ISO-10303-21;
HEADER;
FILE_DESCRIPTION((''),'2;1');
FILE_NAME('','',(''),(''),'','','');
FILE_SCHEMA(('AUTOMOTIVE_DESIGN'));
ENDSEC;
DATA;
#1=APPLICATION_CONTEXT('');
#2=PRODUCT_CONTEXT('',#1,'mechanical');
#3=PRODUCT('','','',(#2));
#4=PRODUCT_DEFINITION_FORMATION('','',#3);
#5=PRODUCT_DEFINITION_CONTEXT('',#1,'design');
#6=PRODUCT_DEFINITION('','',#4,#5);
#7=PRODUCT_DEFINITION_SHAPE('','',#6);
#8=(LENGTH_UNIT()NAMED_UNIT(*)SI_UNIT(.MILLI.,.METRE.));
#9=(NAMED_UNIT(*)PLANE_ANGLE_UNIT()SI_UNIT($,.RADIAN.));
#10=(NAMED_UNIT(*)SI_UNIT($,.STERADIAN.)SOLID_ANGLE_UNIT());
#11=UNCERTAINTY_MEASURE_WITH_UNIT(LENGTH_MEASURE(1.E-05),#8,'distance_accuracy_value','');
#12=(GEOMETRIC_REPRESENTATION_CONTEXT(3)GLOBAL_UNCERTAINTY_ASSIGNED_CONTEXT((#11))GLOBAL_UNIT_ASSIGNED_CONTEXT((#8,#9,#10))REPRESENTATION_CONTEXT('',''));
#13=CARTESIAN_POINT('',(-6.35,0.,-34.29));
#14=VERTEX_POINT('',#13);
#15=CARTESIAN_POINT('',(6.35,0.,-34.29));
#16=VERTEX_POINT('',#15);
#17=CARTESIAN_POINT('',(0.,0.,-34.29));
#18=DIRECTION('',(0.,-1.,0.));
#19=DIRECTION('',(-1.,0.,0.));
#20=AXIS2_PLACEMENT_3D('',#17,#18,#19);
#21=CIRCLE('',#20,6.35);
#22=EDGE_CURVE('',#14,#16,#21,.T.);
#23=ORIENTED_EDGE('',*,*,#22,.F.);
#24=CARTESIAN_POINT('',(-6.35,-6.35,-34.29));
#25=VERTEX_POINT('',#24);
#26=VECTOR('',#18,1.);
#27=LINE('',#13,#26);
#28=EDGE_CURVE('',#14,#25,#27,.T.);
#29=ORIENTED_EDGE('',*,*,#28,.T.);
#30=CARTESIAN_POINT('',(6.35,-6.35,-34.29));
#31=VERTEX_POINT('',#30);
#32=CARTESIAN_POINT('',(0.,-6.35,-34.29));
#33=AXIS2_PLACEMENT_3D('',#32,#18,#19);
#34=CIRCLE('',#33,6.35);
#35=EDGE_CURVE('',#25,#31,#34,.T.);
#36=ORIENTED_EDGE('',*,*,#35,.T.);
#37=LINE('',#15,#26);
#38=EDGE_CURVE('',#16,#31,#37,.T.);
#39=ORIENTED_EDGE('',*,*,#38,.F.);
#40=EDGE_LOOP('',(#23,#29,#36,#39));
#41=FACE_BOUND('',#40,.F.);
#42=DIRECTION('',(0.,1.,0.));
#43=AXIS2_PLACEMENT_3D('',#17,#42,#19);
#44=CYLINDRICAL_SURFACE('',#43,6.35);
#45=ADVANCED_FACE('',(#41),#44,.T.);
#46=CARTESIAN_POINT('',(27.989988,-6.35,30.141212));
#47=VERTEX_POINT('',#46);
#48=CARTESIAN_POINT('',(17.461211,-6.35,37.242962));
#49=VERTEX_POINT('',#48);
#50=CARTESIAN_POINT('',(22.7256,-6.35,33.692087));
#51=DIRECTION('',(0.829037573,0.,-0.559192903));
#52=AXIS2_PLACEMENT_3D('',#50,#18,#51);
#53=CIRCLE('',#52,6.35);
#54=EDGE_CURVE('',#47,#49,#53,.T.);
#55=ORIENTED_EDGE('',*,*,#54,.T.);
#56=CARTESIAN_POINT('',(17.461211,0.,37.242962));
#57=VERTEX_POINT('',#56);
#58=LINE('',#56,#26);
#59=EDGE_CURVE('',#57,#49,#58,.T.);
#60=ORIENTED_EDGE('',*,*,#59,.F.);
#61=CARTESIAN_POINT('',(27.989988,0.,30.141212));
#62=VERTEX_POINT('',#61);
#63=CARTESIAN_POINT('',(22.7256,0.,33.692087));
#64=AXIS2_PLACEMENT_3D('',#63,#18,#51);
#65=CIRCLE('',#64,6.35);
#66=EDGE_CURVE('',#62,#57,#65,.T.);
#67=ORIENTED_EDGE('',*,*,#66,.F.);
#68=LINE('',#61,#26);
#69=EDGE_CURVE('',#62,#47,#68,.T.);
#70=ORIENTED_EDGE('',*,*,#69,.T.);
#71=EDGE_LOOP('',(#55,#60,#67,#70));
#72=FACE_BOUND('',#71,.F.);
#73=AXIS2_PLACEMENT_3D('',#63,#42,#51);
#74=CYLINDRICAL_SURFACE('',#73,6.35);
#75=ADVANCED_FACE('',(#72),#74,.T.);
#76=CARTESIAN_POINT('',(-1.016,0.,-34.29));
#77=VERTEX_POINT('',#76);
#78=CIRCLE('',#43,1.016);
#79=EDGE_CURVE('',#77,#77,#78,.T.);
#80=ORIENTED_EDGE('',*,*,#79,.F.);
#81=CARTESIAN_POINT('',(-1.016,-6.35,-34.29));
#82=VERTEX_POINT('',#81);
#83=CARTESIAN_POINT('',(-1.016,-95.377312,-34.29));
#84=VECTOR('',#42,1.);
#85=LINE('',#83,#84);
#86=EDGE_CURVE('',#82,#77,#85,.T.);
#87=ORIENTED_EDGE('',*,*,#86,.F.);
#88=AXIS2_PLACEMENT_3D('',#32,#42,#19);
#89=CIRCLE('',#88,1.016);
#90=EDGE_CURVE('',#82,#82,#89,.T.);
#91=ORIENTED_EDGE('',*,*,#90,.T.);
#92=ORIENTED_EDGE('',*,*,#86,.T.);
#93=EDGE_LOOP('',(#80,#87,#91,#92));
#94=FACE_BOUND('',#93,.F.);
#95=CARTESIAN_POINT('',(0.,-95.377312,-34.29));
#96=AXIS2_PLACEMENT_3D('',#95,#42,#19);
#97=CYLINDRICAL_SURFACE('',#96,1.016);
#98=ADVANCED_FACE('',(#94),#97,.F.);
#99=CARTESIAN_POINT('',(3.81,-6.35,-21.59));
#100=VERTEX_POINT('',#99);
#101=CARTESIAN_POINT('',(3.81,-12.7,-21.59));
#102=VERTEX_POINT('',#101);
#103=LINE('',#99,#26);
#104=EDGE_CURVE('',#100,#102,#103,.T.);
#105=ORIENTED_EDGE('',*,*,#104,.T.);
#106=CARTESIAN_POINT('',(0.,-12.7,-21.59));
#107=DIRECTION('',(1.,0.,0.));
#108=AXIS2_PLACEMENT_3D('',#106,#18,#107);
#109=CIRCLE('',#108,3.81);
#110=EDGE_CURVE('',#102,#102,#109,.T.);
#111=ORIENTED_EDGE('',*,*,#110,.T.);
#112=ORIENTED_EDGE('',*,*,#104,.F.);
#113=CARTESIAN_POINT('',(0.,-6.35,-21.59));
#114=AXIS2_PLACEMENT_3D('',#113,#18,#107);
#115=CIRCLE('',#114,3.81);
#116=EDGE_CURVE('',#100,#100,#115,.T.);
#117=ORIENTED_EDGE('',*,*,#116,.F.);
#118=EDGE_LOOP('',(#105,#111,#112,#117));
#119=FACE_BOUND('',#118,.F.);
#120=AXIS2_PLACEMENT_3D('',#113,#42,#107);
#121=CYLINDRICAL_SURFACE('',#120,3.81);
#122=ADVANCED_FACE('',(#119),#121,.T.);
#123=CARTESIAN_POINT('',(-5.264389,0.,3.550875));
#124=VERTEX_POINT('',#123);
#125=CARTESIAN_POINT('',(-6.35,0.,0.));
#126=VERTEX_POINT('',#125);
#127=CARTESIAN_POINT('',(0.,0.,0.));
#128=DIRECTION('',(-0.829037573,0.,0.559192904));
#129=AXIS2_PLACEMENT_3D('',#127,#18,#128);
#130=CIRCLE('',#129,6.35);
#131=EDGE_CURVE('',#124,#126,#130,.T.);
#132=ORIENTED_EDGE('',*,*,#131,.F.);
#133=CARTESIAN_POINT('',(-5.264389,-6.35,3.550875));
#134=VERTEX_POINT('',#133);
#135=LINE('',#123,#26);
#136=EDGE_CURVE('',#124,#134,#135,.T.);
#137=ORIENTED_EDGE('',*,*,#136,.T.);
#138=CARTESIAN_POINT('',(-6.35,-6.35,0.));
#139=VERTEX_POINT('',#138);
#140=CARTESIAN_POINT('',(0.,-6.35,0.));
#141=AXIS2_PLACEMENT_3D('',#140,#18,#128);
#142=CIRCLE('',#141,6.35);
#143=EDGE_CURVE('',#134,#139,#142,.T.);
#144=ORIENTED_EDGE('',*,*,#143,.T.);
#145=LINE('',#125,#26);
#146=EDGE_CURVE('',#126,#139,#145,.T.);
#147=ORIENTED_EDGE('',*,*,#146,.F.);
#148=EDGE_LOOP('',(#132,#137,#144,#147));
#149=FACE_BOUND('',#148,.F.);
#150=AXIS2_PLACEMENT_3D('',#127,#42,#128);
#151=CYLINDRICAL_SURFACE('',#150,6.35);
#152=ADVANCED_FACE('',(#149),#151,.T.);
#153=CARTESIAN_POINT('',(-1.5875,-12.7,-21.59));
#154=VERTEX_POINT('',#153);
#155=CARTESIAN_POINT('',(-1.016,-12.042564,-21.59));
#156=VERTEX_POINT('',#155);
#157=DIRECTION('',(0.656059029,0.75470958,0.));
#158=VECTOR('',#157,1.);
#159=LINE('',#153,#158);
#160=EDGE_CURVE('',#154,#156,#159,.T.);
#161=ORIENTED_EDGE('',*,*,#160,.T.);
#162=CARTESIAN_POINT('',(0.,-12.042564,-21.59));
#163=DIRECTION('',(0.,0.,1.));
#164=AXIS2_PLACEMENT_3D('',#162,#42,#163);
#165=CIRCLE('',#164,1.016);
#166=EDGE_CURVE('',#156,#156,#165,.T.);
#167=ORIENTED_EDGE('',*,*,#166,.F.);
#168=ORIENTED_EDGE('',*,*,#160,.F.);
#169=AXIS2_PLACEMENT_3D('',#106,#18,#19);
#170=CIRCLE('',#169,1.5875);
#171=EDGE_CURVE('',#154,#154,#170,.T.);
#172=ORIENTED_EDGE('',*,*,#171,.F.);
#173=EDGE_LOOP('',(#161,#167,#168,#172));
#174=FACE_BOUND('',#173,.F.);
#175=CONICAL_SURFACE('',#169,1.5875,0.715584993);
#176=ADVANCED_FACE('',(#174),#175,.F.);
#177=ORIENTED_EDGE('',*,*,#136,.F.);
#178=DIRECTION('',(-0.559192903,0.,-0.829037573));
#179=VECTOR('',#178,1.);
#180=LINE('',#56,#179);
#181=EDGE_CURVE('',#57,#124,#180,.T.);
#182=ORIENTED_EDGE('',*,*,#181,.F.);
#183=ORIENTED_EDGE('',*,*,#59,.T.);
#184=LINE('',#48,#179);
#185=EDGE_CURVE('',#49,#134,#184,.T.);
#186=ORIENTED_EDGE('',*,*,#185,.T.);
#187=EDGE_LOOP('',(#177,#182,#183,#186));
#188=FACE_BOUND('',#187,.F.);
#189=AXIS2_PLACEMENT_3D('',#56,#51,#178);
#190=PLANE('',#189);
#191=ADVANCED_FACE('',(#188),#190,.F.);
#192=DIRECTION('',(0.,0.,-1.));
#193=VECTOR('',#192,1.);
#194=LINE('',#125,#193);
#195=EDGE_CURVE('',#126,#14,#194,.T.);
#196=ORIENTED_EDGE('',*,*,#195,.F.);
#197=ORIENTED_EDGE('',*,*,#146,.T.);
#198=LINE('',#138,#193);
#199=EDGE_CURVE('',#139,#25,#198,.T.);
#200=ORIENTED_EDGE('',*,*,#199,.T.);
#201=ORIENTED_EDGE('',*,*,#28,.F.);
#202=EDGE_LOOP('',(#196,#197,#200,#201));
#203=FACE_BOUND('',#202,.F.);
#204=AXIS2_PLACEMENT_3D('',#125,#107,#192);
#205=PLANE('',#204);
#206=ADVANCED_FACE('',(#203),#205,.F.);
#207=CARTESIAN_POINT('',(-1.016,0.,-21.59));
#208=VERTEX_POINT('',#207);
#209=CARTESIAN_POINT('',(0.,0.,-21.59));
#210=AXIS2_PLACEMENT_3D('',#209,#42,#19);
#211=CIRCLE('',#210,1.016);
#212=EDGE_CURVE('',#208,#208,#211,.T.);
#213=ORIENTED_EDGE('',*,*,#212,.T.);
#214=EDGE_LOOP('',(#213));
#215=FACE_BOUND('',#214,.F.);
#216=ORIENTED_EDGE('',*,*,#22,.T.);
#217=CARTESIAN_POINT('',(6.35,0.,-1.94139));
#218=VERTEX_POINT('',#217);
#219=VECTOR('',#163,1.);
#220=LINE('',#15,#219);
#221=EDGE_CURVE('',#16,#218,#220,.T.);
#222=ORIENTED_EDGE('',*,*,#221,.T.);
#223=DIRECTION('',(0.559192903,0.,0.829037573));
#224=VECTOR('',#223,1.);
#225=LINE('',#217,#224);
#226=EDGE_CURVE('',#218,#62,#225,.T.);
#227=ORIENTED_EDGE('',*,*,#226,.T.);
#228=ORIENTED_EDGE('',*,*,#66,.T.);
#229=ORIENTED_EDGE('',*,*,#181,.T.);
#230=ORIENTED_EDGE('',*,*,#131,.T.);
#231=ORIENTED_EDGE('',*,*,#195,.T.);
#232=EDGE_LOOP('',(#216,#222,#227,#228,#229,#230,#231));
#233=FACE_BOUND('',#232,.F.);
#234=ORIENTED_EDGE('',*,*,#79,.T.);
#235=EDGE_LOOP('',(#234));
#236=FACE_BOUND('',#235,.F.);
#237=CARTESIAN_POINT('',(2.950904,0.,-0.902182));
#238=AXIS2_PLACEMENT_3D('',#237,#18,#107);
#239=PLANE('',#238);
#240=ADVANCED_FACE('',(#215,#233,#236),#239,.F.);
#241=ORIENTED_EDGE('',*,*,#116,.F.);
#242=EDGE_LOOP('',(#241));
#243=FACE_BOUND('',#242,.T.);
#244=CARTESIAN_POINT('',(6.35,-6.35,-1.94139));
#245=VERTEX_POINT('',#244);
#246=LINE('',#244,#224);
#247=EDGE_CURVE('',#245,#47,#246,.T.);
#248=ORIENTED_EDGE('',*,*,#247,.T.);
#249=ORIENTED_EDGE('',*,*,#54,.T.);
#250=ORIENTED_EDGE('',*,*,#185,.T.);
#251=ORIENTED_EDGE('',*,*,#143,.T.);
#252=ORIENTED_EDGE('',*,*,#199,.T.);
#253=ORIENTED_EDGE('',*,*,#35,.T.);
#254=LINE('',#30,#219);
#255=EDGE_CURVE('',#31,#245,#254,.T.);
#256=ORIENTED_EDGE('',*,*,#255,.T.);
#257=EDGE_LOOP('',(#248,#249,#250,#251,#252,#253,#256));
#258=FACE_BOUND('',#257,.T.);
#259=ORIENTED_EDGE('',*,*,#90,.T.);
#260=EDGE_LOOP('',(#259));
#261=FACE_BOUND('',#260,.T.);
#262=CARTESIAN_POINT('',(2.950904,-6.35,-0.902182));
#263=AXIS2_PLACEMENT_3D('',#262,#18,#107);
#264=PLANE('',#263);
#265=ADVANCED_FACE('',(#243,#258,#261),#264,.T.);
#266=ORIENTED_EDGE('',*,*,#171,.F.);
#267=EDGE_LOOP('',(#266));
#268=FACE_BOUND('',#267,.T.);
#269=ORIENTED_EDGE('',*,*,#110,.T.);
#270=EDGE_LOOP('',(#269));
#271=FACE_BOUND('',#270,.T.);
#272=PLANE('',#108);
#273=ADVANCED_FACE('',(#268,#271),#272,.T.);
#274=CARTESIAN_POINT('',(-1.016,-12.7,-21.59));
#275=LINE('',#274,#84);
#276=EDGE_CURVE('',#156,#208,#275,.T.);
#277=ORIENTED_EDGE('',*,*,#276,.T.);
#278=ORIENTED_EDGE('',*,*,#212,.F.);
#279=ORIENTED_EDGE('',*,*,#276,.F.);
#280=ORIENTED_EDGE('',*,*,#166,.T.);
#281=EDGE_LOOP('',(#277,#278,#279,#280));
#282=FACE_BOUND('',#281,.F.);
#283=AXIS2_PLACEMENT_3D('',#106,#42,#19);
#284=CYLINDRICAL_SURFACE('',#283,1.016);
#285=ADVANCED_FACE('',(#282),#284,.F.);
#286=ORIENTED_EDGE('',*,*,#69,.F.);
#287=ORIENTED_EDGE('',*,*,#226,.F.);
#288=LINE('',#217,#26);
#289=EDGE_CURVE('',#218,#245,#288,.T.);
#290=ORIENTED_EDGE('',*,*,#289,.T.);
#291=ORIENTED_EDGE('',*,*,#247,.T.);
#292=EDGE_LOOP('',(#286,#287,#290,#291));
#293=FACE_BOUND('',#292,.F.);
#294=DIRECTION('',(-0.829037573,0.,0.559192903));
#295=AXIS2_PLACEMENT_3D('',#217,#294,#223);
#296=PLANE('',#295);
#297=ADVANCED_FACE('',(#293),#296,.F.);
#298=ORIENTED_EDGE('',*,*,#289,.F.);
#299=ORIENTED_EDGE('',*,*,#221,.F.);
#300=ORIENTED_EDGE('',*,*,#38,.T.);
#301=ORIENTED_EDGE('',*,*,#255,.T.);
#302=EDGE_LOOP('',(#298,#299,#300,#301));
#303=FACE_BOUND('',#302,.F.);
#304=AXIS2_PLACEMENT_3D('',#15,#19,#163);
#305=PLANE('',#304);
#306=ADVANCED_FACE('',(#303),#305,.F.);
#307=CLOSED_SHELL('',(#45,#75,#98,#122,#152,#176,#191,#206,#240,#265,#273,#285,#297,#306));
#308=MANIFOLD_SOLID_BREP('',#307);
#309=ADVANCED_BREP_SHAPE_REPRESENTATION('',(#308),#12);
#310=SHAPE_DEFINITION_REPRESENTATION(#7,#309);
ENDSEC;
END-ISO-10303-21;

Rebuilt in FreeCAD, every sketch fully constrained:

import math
import FreeCAD as App
import Part
import Sketcher
from FreeCAD import Vector
Q = App.Units.Quantity

doc = App.newDocument("Part")
body = doc.addObject("PartDesign::Body", "Body")

sketch1 = body.newObject("Sketcher::SketchObject", "Sketch")
sketch1.AttachmentSupport = (doc.getObject("XZ_Plane"), [""])
sketch1.MapMode = "FlatFace"
sketch1.addGeometry([
    Part.ArcOfCircle(Part.Circle(Vector(0, 0, 0), Vector(0, 0, 1), 6.3), math.radians(146), math.radians(180)),
    Part.LineSegment(Vector(-6.3, 0, 0), Vector(-6.3, -34.3, 0)),
    Part.ArcOfCircle(Part.Circle(Vector(0, -34.3, 0), Vector(0, 0, 1), 6.3), math.radians(180), math.radians(360)),
    Part.LineSegment(Vector(6.3, -34.3, 0), Vector(6.3, -1.9, 0)),
    Part.LineSegment(Vector(6.3, -1.9, 0), Vector(28, 30.1, 0)),
    Part.ArcOfCircle(Part.Circle(Vector(22.7, 33.7, 0), Vector(0, 0, 1), 6.3), math.radians(-34), math.radians(146)),
    Part.LineSegment(Vector(17.5, 37.2, 0), Vector(-5.3, 3.6, 0)),
], False)
sketch1.addConstraint([
    Sketcher.Constraint("Tangent", 0, 2, 1, 1),
    Sketcher.Constraint("Tangent", 1, 2, 2, 1),
    Sketcher.Constraint("Tangent", 2, 2, 3, 1),
    Sketcher.Constraint("Coincident", 3, 2, 4, 1),
    Sketcher.Constraint("Tangent", 4, 2, 5, 1),
    Sketcher.Constraint("Tangent", 5, 2, 6, 1),
    Sketcher.Constraint("Tangent", 6, 2, 0, 1),
    Sketcher.Constraint("Vertical", 1),
    Sketcher.Constraint("Vertical", 3),
    Sketcher.Constraint("Coincident", 0, 3, -1, 1),
    Sketcher.Constraint("Equal", 0, 2),
    Sketcher.Constraint("Equal", 2, 5),
    Sketcher.Constraint("Parallel", 4, 6),
    Sketcher.Constraint("Radius", 0, Q("0.25 in")),
    Sketcher.Constraint("Angle", 4, Q("56 deg")),
    Sketcher.Constraint("Distance", 6, Q("1.6 in")),
    Sketcher.Constraint("DistanceY", 1, 2, 1, 1, Q("1.35 in")),
])
pad1 = body.newObject("PartDesign::Pad", "Pad")
pad1.Profile = sketch1
pad1.Length = Q("0.25 in")

sketch2 = body.newObject("Sketcher::SketchObject", "Sketch001")
sketch2.AttachmentSupport = (doc.getObject("XZ_Plane"), [""])
sketch2.MapMode = "FlatFace"
sketch2.AttachmentOffset = App.Placement(Vector(0, 0, 0.25 * 25.4), App.Rotation())
sketch2.addGeometry(Part.Circle(Vector(0, -21.6, 0), Vector(0, 0, 1), 3.8), False)
sketch2.addConstraint([
    Sketcher.Constraint("PointOnObject", 0, 3, -2),
    Sketcher.Constraint("Diameter", 0, Q("0.3 in")),
    Sketcher.Constraint("DistanceY", 0, 3, -1, 1, Q("0.85 in")),
])
pad2 = body.newObject("PartDesign::Pad", "Pad001")
pad2.Profile = sketch2
pad2.Length = Q("0.25 in")

sketch3 = body.newObject("Sketcher::SketchObject", "Sketch002")
sketch3.AttachmentSupport = (doc.getObject("XZ_Plane"), [""])
sketch3.MapMode = "FlatFace"
sketch3.AttachmentOffset = App.Placement(Vector(0, 0, 0.5 * 25.4), App.Rotation())
sketch3.addGeometry(Part.Circle(Vector(0, -21.6, 0), Vector(0, 0, 1), 1), False)
sketch3.addConstraint([
    Sketcher.Constraint("PointOnObject", 0, 3, -2),
    Sketcher.Constraint("Diameter", 0, Q("0.08 in")),
    Sketcher.Constraint("DistanceY", 0, 3, -1, 1, Q("0.85 in")),
])
doc.recompute()
hole = body.newObject("PartDesign::Hole", "Hole")
hole.Profile = sketch3
hole.ThreadType = "None"
hole.Diameter = Q("0.08 in")
hole.DepthType = "ThroughAll"
hole.HoleCutType = "Countersink"
hole.HoleCutDiameter = Q("0.125 in")
hole.HoleCutCountersinkAngle = 82

sketch4 = body.newObject("Sketcher::SketchObject", "Sketch003")
sketch4.AttachmentSupport = (doc.getObject("XZ_Plane"), [""])
sketch4.MapMode = "FlatFace"
sketch4.AttachmentOffset = App.Placement(Vector(0, 0, 0.25 * 25.4), App.Rotation())
sketch4.addGeometry(Part.Circle(Vector(0, -34.3, 0), Vector(0, 0, 1), 1), False)
sketch4.addConstraint([
    Sketcher.Constraint("PointOnObject", 0, 3, -2),
    Sketcher.Constraint("Diameter", 0, Q("0.08 in")),
    Sketcher.Constraint("DistanceY", 0, 3, -1, 1, Q("1.35 in")),
])
doc.recompute()
hole2 = body.newObject("PartDesign::Hole", "Hole001")
hole2.Profile = sketch4
hole2.ThreadType = "None"
hole2.Diameter = Q("0.08 in")
hole2.DepthType = "ThroughAll"

doc.recompute()
